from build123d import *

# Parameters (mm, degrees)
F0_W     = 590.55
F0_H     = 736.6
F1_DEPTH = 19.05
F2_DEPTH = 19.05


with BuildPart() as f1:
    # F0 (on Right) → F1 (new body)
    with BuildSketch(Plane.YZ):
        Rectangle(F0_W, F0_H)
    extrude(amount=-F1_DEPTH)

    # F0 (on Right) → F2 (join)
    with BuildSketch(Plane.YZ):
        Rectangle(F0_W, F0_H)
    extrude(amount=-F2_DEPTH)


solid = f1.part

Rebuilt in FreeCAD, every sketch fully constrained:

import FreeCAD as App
import Part
import Sketcher
Q = App.Units.Quantity


def add_polygon(sketch, points):
    """Adds a closed chain of lines whose ends are joined by coincident constraints."""
    first, n = sketch.GeometryCount, len(points)
    for a, b in zip(points, points[1:] + points[:1]):
        sketch.addGeometry(Part.LineSegment(App.Vector(*a, 0), App.Vector(*b, 0)), False)
    for i in range(n):
        sketch.addConstraint(Sketcher.Constraint("Coincident", first + i, 2, first + (i + 1) % n, 1))

doc = App.newDocument("Part")
body = doc.addObject("PartDesign::Body", "Body")

# Sketch on YZ plane
sketch1 = body.newObject("Sketcher::SketchObject", "Sketch")
sketch1.AttachmentSupport = (doc.getObject("YZ_Plane"), [""])
sketch1.MapMode = "FlatFace"
add_polygon(sketch1, [(-295, 368), (-295, -368), (295, -368), (295, 368)])  # lines 0-3
sketch1.addConstraint(Sketcher.Constraint("Vertical", 0))
sketch1.addConstraint(Sketcher.Constraint("Horizontal", 1))
sketch1.addConstraint(Sketcher.Constraint("Vertical", 2))
sketch1.addConstraint(Sketcher.Constraint("Horizontal", 3))
sketch1.addConstraint(Sketcher.Constraint("Symmetric", 0, 2, 2, 2, -1, 1))
sketch1.addConstraint(Sketcher.Constraint("DistanceY", 0, 2, 0, 1, Q("29 in")))
sketch1.addConstraint(Sketcher.Constraint("DistanceX", 1, 1, 1, 2, Q("23.25 in")))
pad1 = body.newObject("PartDesign::Pad", "Pad")
pad1.Profile = sketch1
pad1.Length = Q("0.75 in")
pad1.Reversed = True

# Sketch on YZ plane
sketch2 = body.newObject("Sketcher::SketchObject", "Sketch001")
sketch2.AttachmentSupport = (doc.getObject("YZ_Plane"), [""])
sketch2.MapMode = "FlatFace"
add_polygon(sketch2, [(-295, 368), (-295, -368), (295, -368), (295, 368)])  # lines 0-3
sketch2.addConstraint(Sketcher.Constraint("Vertical", 0))
sketch2.addConstraint(Sketcher.Constraint("Horizontal", 1))
sketch2.addConstraint(Sketcher.Constraint("Vertical", 2))
sketch2.addConstraint(Sketcher.Constraint("Horizontal", 3))
sketch2.addConstraint(Sketcher.Constraint("Symmetric", 0, 2, 2, 2, -1, 1))
sketch2.addConstraint(Sketcher.Constraint("DistanceY", 0, 2, 0, 1, Q("29 in")))
sketch2.addConstraint(Sketcher.Constraint("DistanceX", 1, 1, 1, 2, Q("23.25 in")))
pad2 = body.newObject("PartDesign::Pad", "Pad001")
pad2.Profile = sketch2
pad2.Length = Q("0.75 in")
pad2.Reversed = True

doc.recompute()
